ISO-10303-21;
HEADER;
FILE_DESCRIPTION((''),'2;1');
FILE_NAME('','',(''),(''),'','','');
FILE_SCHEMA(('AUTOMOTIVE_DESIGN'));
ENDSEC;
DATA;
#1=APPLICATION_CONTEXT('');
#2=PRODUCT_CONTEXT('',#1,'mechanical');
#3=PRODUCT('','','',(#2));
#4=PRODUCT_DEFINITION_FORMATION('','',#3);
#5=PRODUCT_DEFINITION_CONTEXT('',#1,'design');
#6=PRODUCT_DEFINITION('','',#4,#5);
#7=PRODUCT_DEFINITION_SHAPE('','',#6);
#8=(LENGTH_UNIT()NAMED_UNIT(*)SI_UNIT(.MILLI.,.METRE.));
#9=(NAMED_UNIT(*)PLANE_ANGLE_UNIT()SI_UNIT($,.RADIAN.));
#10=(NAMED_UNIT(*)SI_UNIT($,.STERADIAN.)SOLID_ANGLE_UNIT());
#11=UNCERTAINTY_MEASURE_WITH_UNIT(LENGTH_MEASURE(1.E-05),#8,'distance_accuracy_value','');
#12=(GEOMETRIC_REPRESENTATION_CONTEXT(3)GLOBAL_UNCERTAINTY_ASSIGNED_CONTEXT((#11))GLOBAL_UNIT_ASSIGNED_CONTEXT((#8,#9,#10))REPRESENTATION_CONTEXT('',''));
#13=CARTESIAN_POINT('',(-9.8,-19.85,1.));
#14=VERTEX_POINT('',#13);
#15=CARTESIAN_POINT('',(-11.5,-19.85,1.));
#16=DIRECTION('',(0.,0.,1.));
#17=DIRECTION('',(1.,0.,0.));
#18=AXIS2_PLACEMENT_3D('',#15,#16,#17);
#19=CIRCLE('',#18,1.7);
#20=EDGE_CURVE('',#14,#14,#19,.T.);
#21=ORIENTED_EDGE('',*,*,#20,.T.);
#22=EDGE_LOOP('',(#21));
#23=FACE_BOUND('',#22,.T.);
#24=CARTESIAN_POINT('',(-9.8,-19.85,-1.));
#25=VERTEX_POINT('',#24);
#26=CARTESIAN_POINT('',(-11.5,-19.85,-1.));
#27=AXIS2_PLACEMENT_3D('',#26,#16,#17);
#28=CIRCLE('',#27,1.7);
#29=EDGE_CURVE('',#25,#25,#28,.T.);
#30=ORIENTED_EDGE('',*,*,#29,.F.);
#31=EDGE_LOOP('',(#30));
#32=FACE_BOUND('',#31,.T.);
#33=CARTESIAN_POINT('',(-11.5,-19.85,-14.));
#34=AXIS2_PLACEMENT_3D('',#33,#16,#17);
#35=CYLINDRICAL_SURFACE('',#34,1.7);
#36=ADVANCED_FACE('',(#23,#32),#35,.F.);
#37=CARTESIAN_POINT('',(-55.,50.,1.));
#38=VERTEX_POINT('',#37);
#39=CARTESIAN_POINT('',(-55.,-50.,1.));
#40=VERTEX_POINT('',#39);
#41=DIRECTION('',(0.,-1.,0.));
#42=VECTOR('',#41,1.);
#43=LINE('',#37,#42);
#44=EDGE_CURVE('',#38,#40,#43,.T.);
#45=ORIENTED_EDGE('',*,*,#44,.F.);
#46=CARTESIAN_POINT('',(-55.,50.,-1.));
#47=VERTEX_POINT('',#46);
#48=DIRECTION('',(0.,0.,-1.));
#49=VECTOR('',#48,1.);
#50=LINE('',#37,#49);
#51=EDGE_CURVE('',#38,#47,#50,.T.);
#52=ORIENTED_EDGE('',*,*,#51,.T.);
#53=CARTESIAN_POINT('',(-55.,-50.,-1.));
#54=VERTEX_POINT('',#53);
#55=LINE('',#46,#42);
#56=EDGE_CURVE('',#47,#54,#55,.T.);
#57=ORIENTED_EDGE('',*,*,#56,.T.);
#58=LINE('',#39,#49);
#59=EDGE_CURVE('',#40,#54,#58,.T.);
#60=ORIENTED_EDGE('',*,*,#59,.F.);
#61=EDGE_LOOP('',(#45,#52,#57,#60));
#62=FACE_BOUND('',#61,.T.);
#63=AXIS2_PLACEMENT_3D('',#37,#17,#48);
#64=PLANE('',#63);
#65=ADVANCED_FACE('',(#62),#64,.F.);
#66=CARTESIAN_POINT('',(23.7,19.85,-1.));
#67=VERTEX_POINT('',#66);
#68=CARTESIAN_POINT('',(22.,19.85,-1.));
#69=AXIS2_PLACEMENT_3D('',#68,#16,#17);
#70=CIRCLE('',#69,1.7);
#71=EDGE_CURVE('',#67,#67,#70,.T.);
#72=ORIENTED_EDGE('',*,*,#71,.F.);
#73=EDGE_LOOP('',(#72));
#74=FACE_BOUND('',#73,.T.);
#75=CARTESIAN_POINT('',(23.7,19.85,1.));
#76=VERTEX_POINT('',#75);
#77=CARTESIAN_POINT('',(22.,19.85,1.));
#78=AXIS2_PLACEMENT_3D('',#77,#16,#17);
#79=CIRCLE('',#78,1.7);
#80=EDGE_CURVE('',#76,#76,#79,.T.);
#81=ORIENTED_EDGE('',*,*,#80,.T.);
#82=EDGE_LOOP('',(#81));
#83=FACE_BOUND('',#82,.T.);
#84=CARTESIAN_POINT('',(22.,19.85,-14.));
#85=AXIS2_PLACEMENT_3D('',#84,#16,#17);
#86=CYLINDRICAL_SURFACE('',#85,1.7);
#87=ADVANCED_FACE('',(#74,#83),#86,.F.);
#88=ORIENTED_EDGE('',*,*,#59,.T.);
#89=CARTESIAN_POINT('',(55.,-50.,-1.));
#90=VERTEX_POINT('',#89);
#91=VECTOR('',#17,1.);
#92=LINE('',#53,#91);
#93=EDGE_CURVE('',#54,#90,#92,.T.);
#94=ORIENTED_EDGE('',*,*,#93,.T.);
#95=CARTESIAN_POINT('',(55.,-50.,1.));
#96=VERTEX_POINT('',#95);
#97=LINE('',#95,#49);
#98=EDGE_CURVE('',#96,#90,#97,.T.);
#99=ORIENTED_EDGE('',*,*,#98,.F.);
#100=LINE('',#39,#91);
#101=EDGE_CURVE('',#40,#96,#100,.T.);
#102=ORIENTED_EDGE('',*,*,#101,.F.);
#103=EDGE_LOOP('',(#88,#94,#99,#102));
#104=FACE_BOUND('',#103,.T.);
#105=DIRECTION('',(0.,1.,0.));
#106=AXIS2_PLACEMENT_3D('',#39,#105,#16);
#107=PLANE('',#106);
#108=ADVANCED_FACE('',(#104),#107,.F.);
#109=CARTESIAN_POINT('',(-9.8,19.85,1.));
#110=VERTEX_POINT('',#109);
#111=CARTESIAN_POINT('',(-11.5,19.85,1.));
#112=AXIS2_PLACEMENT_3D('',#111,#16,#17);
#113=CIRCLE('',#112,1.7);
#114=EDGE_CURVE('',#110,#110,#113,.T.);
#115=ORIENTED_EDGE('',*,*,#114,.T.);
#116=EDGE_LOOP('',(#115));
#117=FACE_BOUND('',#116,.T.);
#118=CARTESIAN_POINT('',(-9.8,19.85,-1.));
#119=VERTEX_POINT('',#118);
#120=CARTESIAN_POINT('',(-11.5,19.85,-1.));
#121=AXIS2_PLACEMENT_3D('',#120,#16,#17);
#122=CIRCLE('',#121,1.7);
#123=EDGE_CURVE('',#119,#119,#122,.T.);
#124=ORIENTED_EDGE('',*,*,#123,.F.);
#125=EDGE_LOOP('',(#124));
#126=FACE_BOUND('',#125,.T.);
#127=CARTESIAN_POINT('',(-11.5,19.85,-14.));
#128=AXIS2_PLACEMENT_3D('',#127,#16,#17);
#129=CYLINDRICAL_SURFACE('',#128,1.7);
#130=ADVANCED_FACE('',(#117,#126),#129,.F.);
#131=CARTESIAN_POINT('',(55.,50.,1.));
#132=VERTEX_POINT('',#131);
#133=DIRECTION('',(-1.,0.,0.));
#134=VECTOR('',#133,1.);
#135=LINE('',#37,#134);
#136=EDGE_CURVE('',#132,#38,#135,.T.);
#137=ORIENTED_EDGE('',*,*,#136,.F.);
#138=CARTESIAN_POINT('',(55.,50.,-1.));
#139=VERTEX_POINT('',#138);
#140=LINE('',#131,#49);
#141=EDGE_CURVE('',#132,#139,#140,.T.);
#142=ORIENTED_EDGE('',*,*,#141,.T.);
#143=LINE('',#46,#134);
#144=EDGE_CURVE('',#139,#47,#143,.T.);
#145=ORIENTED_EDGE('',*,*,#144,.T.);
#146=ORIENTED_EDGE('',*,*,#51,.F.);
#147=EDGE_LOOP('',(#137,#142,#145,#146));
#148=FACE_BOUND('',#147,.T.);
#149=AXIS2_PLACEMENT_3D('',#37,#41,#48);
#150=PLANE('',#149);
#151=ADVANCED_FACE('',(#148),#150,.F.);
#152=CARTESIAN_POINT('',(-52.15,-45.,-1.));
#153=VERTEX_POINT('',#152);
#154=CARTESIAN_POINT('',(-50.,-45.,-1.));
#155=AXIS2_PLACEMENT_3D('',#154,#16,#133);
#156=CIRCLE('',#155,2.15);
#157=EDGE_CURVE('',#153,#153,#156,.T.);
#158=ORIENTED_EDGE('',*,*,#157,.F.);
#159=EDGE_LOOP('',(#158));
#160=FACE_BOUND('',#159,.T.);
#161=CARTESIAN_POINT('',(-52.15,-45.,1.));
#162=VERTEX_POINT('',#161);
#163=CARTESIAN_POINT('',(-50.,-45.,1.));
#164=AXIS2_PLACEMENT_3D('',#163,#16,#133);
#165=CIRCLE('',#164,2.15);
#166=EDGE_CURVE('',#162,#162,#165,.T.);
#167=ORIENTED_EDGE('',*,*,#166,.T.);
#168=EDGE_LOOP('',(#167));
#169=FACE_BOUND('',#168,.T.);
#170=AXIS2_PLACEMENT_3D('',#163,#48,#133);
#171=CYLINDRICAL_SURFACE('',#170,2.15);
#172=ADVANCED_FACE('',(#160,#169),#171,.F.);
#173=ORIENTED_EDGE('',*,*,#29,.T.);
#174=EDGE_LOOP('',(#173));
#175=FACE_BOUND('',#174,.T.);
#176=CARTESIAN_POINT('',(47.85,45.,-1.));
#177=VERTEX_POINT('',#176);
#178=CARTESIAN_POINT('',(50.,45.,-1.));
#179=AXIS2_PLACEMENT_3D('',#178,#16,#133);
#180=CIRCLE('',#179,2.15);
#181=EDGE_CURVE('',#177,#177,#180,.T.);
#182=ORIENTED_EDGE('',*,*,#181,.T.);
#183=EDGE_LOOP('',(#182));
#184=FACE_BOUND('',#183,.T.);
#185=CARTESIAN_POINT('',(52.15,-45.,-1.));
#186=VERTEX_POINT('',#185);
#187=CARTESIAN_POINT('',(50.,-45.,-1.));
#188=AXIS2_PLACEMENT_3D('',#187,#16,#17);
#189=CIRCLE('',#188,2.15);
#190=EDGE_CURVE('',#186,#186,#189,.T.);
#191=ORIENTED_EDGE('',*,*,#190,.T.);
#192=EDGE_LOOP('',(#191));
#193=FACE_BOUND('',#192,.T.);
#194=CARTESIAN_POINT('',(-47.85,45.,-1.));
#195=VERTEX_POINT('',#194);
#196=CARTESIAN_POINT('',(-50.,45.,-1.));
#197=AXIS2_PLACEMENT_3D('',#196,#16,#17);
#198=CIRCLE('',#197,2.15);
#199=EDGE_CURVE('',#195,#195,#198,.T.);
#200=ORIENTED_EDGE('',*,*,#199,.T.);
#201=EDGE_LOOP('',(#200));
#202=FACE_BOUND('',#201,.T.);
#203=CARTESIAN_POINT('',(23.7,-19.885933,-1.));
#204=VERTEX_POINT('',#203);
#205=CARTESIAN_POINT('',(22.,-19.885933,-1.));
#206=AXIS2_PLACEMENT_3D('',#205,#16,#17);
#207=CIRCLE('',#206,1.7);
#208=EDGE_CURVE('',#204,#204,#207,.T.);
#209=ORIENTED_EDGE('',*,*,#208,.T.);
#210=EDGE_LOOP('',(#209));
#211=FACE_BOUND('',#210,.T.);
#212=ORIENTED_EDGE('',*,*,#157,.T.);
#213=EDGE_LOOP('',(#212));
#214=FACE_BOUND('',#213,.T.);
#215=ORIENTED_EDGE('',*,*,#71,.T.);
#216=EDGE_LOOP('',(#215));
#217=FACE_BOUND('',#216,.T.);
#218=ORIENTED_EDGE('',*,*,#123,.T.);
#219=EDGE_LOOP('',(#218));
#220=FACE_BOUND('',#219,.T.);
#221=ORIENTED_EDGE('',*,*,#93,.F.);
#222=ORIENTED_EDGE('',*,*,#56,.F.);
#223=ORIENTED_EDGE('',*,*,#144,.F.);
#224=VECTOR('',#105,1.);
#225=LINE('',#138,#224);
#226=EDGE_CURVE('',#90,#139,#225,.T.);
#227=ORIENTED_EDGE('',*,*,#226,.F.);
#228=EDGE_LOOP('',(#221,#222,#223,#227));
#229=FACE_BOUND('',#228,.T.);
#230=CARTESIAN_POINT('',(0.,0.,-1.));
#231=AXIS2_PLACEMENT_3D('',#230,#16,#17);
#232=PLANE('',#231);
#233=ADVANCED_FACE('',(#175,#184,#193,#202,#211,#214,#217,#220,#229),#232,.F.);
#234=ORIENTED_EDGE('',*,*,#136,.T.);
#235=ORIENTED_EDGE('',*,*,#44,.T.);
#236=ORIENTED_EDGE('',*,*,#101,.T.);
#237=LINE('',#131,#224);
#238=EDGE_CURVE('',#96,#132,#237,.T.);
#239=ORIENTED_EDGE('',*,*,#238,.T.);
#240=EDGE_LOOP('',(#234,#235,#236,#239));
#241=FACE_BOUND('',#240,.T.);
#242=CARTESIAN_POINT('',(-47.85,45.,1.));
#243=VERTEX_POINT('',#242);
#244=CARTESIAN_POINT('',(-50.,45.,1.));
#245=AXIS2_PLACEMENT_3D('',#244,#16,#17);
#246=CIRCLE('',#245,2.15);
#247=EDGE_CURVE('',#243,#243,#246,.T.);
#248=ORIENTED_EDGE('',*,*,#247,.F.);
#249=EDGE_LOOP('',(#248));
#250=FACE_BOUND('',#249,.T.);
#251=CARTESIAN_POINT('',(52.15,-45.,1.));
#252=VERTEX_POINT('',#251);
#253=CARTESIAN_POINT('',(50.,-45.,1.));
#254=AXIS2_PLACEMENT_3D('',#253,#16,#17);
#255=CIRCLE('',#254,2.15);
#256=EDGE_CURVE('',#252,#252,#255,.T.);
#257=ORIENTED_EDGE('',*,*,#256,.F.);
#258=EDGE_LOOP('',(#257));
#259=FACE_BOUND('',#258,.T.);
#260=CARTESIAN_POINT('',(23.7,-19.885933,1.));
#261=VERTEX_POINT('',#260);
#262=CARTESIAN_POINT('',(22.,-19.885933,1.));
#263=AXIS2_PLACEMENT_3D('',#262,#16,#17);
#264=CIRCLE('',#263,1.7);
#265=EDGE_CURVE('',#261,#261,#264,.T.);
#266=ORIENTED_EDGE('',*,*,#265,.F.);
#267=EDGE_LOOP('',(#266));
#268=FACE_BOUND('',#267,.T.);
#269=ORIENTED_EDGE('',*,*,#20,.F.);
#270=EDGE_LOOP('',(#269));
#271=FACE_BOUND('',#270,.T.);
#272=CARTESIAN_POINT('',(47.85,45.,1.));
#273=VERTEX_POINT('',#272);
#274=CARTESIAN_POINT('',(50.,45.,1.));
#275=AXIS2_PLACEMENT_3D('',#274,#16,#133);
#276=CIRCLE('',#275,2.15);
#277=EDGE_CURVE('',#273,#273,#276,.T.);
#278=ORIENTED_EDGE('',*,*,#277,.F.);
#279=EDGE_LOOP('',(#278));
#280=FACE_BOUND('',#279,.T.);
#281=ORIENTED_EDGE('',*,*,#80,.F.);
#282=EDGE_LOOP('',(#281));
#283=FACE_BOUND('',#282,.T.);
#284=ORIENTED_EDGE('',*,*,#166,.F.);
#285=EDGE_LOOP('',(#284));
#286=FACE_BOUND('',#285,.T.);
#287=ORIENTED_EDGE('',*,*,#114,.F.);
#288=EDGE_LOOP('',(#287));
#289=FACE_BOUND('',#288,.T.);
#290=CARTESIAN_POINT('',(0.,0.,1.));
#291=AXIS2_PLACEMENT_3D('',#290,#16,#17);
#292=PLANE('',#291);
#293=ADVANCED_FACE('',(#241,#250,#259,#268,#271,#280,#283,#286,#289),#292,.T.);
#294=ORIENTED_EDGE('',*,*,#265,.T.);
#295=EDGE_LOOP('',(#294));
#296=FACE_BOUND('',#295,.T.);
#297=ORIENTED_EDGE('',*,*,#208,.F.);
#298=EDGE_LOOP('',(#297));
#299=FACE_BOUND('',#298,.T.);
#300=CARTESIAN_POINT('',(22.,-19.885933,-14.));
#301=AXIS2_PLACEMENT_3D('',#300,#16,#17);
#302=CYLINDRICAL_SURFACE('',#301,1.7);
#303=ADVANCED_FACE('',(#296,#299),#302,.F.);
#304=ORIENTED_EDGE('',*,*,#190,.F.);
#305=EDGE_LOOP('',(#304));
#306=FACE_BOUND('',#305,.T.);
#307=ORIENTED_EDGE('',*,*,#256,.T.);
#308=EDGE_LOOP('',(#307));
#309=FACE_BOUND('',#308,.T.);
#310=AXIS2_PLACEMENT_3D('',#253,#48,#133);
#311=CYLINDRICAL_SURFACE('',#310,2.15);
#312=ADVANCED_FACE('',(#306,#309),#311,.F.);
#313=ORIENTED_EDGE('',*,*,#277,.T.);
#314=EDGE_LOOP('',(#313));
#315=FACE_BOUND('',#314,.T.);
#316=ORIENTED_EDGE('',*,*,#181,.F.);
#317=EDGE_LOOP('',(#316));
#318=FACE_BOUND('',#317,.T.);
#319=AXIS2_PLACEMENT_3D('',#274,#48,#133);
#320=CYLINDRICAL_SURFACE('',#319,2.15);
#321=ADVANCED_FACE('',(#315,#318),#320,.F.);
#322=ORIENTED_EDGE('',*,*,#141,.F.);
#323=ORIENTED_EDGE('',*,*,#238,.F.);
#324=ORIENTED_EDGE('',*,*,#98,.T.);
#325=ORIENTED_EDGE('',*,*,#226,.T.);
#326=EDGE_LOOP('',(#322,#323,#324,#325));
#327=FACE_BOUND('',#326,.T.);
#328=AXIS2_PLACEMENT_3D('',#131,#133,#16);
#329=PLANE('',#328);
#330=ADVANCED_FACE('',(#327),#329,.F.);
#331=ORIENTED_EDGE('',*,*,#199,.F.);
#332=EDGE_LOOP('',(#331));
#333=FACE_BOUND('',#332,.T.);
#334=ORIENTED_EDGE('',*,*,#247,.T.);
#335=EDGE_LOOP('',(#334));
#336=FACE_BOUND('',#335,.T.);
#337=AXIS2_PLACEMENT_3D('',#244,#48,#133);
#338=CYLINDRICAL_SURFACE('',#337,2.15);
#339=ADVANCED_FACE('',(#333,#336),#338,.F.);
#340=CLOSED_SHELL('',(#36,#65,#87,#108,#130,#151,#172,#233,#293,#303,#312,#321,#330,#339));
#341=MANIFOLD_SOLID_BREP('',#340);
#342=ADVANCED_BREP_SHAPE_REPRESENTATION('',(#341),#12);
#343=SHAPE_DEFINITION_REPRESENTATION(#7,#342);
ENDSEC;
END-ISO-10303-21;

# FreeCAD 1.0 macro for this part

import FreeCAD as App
import Part
import Sketcher
from FreeCAD import Vector


def add_polygon(sketch, points):
    """Adds a closed chain of lines whose ends are joined by coincident constraints."""
    first, n = sketch.GeometryCount, len(points)
    for a, b in zip(points, points[1:] + points[:1]):
        sketch.addGeometry(Part.LineSegment(App.Vector(*a, 0), App.Vector(*b, 0)), False)
    for i in range(n):
        sketch.addConstraint(Sketcher.Constraint("Coincident", first + i, 2, first + (i + 1) % n, 1))

doc = App.newDocument("Part")
params = doc.addObject("Spreadsheet::Sheet", "Params")
for row, (alias, value) in enumerate([
    ("sketch1_diameter", "4.3 mm"),
    ("sketch1_width", "110 mm"),
    ("sketch1_height", "100 mm"),
    ("pad1_length", "2 mm"),
    ("sketch2_diameter", "3.4 mm"),
    ("pocket1_length", "15 mm"),
], start=1):
    params.set(f"A{row}", alias)
    params.set(f"B{row}", "=" + value)
    params.setAlias(f"B{row}", alias)

body = doc.addObject("PartDesign::Body", "Body")

sketch1 = doc.addObject("Sketcher::SketchObject", "Sketch")
body.addObject(sketch1)
sketch1.AttachmentSupport = (doc.XY_Plane, [""])
sketch1.MapMode = "FlatFace"
add_polygon(sketch1, [(-55, 50), (-55, -50), (55, -50), (55, 50)])
sketch1.addGeometry(Part.Circle(Vector(-50, -45, 0), Vector(0, 0, 1), 2.15), False)
sketch1.addGeometry(Part.Circle(Vector(50, -45, 0), Vector(0, 0, 1), 2.15), False)
sketch1.addGeometry(Part.Circle(Vector(-50, 45, 0), Vector(0, 0, 1), 2.15), False)
sketch1.addGeometry(Part.Circle(Vector(50, 45, 0), Vector(0, 0, 1), 2.15), False)
sketch1.addConstraint(Sketcher.Constraint("Vertical", 0))
sketch1.addConstraint(Sketcher.Constraint("Horizontal", 1))
sketch1.addConstraint(Sketcher.Constraint("Vertical", 2))
sketch1.addConstraint(Sketcher.Constraint("Horizontal", 3))
sketch1.addConstraint(Sketcher.Constraint("Equal", 4, 5))
sketch1.addConstraint(Sketcher.Constraint("Equal", 5, 6))
sketch1.addConstraint(Sketcher.Constraint("Equal", 6, 7))
sketch1.addConstraint(Sketcher.Constraint("Symmetric", 5, 3, 6, 3, -1, 1))
sketch1.addConstraint(Sketcher.Constraint("Symmetric", 4, 3, 7, 3, -1, 1))
sketch1.addConstraint(Sketcher.Constraint("Symmetric", 0, 2, 2, 2, -1, 1))
sketch1.addConstraint(Sketcher.Constraint("Symmetric", 4, 3, 5, 3, -2))
sketch1.addConstraint(Sketcher.Constraint("Diameter", 4, 4.3))
sketch1.addConstraint(Sketcher.Constraint("DistanceX", 1, 1, 1, 2, 110.0))
sketch1.addConstraint(Sketcher.Constraint("DistanceY", 0, 2, 0, 1, 100.0))
sketch1.addConstraint(Sketcher.Constraint("DistanceX", 4, 3, -1, 1, 50.0))
sketch1.addConstraint(Sketcher.Constraint("DistanceY", 4, 3, -1, 1, 45.0))
sketch1.setExpression("Constraints[15]", "Params.sketch1_diameter")
sketch1.setExpression("Constraints[16]", "Params.sketch1_width")
sketch1.setExpression("Constraints[17]", "Params.sketch1_height")
pad1 = doc.addObject("PartDesign::Pad", "Pad")
body.addObject(pad1)
pad1.Profile = sketch1
pad1.setExpression("Length", "Params.pad1_length")
pad1.Midplane = True

sketch2 = doc.addObject("Sketcher::SketchObject", "Sketch001")
body.addObject(sketch2)
sketch2.AttachmentSupport = (doc.XY_Plane, [""])
sketch2.MapMode = "FlatFace"
sketch2.AttachmentOffset = App.Placement(Vector(0, 0, 1), App.Rotation())
sketch2.addGeometry(Part.Circle(Vector(22, 19.85, 0), Vector(0, 0, 1), 1.7), False)
sketch2.addGeometry(Part.Circle(Vector(-11.5, 19.85, 0), Vector(0, 0, 1), 1.7), False)
sketch2.addGeometry(Part.Circle(Vector(22, -19.885933, 0), Vector(0, 0, 1), 1.7), False)
sketch2.addGeometry(Part.Circle(Vector(-11.5, -19.85, 0), Vector(0, 0, 1), 1.7), False)
sketch2.addConstraint(Sketcher.Constraint("Equal", 0, 1))
sketch2.addConstraint(Sketcher.Constraint("Equal", 1, 2))
sketch2.addConstraint(Sketcher.Constraint("Equal", 2, 3))
sketch2.addConstraint(Sketcher.Constraint("Symmetric", 1, 3, 3, 3, -1))
sketch2.addConstraint(Sketcher.Constraint("Horizontal", 0, 3, 1, 3))
sketch2.addConstraint(Sketcher.Constraint("Vertical", 0, 3, 2, 3))
sketch2.addConstraint(Sketcher.Constraint("Diameter", 0, 3.4))
sketch2.addConstraint(Sketcher.Constraint("DistanceX", -1, 1, 0, 3, 22.0))
sketch2.addConstraint(Sketcher.Constraint("DistanceX", 1, 3, -1, 1, 11.5))
sketch2.addConstraint(Sketcher.Constraint("DistanceY", 3, 3, 1, 3, 39.7))
sketch2.addConstraint(Sketcher.Constraint("DistanceY", 2, 3, -1, 1, 19.885933))
sketch2.setExpression("Constraints[6]", "Params.sketch2_diameter")
pocket1 = doc.addObject("PartDesign::Pocket", "Pocket")
body.addObject(pocket1)
pocket1.Profile = sketch2
pocket1.setExpression("Length", "Params.pocket1_length")

doc.recompute()
